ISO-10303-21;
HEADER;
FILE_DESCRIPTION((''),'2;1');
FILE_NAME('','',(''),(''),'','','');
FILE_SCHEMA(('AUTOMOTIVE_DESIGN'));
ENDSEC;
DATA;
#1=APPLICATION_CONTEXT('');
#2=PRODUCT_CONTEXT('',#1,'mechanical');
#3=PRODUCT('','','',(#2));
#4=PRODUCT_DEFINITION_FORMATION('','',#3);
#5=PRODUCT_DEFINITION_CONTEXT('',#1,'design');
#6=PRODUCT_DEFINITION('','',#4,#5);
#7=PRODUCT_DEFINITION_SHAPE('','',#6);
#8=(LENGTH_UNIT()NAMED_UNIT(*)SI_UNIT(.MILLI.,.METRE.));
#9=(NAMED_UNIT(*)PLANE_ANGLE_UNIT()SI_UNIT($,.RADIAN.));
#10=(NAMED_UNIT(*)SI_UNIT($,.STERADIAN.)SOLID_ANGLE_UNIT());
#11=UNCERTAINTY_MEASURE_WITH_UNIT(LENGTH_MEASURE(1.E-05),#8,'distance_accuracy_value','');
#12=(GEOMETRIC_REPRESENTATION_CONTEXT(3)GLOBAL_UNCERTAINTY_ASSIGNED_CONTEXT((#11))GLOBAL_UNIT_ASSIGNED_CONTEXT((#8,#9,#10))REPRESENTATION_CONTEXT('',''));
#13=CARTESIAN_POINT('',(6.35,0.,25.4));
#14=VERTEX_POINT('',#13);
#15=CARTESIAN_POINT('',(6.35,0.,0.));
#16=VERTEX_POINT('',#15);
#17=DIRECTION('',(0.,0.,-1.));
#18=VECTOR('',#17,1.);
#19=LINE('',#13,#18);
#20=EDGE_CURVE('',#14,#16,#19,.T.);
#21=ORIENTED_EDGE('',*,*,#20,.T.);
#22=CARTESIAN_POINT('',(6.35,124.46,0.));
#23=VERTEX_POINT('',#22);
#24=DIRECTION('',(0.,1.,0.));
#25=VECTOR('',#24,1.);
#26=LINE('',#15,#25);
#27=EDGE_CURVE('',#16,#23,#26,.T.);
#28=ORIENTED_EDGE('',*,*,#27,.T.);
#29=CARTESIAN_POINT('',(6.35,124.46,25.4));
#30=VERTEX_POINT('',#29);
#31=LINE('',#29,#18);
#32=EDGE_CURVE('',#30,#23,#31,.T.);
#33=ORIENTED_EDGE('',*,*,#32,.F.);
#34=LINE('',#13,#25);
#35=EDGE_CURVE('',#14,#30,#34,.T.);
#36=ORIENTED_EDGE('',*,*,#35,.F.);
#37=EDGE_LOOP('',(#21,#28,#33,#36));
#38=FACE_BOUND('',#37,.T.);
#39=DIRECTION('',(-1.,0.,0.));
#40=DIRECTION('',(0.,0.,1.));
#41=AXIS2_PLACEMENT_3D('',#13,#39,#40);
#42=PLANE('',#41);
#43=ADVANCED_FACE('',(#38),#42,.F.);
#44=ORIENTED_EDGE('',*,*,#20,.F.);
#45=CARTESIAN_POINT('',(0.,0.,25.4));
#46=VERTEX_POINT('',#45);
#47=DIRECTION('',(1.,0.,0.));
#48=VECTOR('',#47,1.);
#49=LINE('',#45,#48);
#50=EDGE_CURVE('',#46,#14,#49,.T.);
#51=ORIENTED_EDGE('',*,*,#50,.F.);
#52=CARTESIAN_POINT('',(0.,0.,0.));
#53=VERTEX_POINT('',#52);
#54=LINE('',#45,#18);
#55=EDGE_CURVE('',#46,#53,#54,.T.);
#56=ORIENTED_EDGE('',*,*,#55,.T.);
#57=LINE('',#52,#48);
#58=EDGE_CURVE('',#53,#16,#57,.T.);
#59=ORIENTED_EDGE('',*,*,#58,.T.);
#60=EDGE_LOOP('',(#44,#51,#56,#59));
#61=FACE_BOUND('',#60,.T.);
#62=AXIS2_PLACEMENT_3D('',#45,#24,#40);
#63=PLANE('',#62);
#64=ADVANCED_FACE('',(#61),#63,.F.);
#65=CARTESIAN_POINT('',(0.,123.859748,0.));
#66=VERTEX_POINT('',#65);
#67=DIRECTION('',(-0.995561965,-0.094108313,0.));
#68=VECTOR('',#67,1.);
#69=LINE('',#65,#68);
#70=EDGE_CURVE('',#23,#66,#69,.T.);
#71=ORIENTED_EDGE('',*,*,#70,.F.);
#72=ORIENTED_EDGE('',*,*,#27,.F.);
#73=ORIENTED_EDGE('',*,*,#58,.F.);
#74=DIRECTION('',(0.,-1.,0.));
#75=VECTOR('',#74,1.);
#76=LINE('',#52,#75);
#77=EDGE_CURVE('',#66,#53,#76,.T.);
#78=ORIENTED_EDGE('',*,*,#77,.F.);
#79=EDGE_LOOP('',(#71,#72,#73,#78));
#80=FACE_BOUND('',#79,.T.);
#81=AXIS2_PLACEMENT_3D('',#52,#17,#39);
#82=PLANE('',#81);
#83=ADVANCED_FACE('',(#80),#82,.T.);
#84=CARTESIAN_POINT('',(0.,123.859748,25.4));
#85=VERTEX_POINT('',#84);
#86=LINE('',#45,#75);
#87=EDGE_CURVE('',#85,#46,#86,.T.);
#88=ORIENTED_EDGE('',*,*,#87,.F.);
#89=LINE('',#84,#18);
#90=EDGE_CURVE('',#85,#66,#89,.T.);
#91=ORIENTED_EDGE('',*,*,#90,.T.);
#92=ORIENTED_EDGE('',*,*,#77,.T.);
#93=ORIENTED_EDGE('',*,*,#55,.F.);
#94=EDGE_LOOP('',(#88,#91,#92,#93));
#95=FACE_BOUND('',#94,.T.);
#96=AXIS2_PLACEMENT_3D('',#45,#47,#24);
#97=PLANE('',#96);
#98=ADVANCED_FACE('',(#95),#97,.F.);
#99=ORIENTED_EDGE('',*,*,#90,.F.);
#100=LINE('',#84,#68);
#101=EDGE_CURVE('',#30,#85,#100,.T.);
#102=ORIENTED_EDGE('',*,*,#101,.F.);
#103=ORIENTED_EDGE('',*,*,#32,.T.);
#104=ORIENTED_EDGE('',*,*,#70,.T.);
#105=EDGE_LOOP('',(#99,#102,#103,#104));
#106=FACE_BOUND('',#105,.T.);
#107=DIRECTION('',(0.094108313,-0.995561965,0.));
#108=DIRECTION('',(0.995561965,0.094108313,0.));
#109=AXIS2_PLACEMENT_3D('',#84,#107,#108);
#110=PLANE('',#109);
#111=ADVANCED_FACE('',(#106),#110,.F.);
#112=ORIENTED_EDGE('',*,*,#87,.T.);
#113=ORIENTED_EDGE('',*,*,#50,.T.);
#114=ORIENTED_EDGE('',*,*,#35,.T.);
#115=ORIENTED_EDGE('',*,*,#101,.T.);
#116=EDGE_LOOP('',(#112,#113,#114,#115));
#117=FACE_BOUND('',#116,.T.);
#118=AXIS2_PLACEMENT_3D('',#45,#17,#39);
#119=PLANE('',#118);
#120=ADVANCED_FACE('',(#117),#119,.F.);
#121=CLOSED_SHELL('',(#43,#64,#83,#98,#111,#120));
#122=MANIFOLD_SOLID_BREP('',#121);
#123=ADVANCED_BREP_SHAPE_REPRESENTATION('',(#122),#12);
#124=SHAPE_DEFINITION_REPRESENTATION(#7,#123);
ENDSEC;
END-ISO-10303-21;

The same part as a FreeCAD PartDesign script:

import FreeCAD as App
import Part
import Sketcher

V = App.Vector
Q = App.Units.Quantity

doc = App.newDocument("Part")
body = doc.addObject("PartDesign::Body", "Body")

# Sketch on XY plane
sketch1 = body.newObject("Sketcher::SketchObject", "Sketch")
sketch1.AttachmentSupport = (doc.getObject("XY_Plane"), [""])
sketch1.MapMode = "FlatFace"
sketch1.addGeometry([
    Part.LineSegment(V(0, 0, 0), V(6, 0, 0)),
    Part.LineSegment(V(6, 0, 0), V(6, 124, 0)),
    Part.LineSegment(V(6, 124, 0), V(0, 124, 0)),
    Part.LineSegment(V(0, 124, 0), V(0, 0, 0)),
], False)
sketch1.addConstraint([
    Sketcher.Constraint("Coincident", 0, 2, 1, 1),
    Sketcher.Constraint("Coincident", 1, 2, 2, 1),
    Sketcher.Constraint("Coincident", 2, 2, 3, 1),
    Sketcher.Constraint("Coincident", 3, 2, 0, 1),
    Sketcher.Constraint("Horizontal", 0),
    Sketcher.Constraint("Vertical", 1),
    Sketcher.Constraint("Vertical", 3),
    Sketcher.Constraint("Coincident", 3, 2, -1, 1),
    Sketcher.Constraint("DistanceY", 1, 1, 1, 2, Q("4.9 in")),
    Sketcher.Constraint("DistanceX", 0, 1, 0, 2, Q("0.25 in")),
    Sketcher.Constraint("Angle", 2, Q("-174.6 deg")),
])
pad1 = body.newObject("PartDesign::Pad", "Pad")
pad1.Profile = sketch1
pad1.Length = Q("1 in")

doc.recompute()
